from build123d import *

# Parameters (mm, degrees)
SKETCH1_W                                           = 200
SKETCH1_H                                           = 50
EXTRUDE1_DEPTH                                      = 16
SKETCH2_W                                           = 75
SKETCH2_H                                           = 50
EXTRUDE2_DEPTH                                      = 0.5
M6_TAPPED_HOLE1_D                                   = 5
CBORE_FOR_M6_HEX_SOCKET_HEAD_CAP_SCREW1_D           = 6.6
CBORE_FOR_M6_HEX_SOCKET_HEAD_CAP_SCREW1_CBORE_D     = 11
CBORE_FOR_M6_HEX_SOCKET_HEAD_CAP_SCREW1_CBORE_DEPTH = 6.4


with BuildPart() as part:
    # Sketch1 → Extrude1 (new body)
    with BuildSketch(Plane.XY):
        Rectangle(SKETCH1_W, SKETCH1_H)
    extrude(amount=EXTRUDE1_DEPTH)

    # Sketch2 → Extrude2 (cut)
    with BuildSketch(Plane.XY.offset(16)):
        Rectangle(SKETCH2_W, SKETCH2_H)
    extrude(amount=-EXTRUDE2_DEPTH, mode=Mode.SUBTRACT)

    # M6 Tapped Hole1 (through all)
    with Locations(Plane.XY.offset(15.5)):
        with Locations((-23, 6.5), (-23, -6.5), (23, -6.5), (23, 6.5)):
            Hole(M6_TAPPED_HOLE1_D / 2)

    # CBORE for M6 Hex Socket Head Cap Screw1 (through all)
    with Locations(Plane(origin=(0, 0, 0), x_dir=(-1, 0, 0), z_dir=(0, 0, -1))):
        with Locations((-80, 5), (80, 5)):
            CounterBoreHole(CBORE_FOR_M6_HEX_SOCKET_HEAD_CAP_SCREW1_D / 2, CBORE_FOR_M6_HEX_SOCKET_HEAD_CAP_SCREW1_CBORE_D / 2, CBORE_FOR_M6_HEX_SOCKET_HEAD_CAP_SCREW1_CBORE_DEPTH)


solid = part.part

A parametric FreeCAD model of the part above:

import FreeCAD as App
import Part
import Sketcher
from FreeCAD import Vector


def add_polygon(sketch, points):
    """Adds a closed chain of lines whose ends are joined by coincident constraints."""
    first, n = sketch.GeometryCount, len(points)
    for a, b in zip(points, points[1:] + points[:1]):
        sketch.addGeometry(Part.LineSegment(App.Vector(*a, 0), App.Vector(*b, 0)), False)
    for i in range(n):
        sketch.addConstraint(Sketcher.Constraint("Coincident", first + i, 2, first + (i + 1) % n, 1))

doc = App.newDocument("Part")
body = doc.addObject("PartDesign::Body", "Body")

# Sketch on XY plane
sketch1 = doc.addObject("Sketcher::SketchObject", "Sketch")
body.addObject(sketch1)
sketch1.AttachmentSupport = (doc.XY_Plane, [""])
sketch1.MapMode = "FlatFace"
add_polygon(sketch1, [(-100, 25), (-100, -25), (100, -25), (100, 25)])  # lines 0-3
sketch1.addConstraint(Sketcher.Constraint("Vertical", 0))
sketch1.addConstraint(Sketcher.Constraint("Horizontal", 1))
sketch1.addConstraint(Sketcher.Constraint("Vertical", 2))
sketch1.addConstraint(Sketcher.Constraint("Horizontal", 3))
sketch1.addConstraint(Sketcher.Constraint("Symmetric", 0, 2, 2, 2, -1, 1))
sketch1.addConstraint(Sketcher.Constraint("DistanceX", 1, 1, 1, 2, 200.0))
sketch1.addConstraint(Sketcher.Constraint("DistanceY", 0, 2, 0, 1, 50.0))
pad1 = doc.addObject("PartDesign::Pad", "Pad")
body.addObject(pad1)
pad1.Profile = sketch1
pad1.Length = 16

# Sketch on XY plane
sketch2 = doc.addObject("Sketcher::SketchObject", "Sketch001")
body.addObject(sketch2)
sketch2.AttachmentSupport = (doc.XY_Plane, [""])
sketch2.MapMode = "FlatFace"
sketch2.AttachmentOffset = App.Placement(Vector(0, 0, 16), App.Rotation())
add_polygon(sketch2, [(-37.5, 25), (-37.5, -25), (37.5, -25), (37.5, 25)])  # lines 0-3
sketch2.addConstraint(Sketcher.Constraint("Vertical", 0))
sketch2.addConstraint(Sketcher.Constraint("Horizontal", 1))
sketch2.addConstraint(Sketcher.Constraint("Vertical", 2))
sketch2.addConstraint(Sketcher.Constraint("Horizontal", 3))
sketch2.addConstraint(Sketcher.Constraint("Symmetric", 0, 2, 2, 2, -1, 1))
sketch2.addConstraint(Sketcher.Constraint("DistanceX", 1, 1, 1, 2, 75.0))
sketch2.addConstraint(Sketcher.Constraint("DistanceY", 0, 2, 0, 1, 50.0))
pocket1 = doc.addObject("PartDesign::Pocket", "Pocket")
body.addObject(pocket1)
pocket1.Profile = sketch2
pocket1.Length = 0.5

# Sketch on XY plane
sketch3 = doc.addObject("Sketcher::SketchObject", "Sketch002")
body.addObject(sketch3)
sketch3.AttachmentSupport = (doc.XY_Plane, [""])
sketch3.MapMode = "FlatFace"
sketch3.AttachmentOffset = App.Placement(Vector(0, 0, 15.5), App.Rotation())
sketch3.addGeometry(Part.Circle(Vector(-23, 6.5, 0), Vector(0, 0, 1), 2.5), False)
sketch3.addGeometry(Part.Circle(Vector(-23, -6.5, 0), Vector(0, 0, 1), 2.5), False)
sketch3.addGeometry(Part.Circle(Vector(23, -6.5, 0), Vector(0, 0, 1), 2.5), False)
sketch3.addGeometry(Part.Circle(Vector(23, 6.5, 0), Vector(0, 0, 1), 2.5), False)
sketch3.addConstraint(Sketcher.Constraint("Equal", 0, 1))
sketch3.addConstraint(Sketcher.Constraint("Equal", 1, 2))
sketch3.addConstraint(Sketcher.Constraint("Equal", 2, 3))
sketch3.addConstraint(Sketcher.Constraint("Symmetric", 0, 3, 2, 3, -1, 1))
sketch3.addConstraint(Sketcher.Constraint("Symmetric", 1, 3, 3, 3, -1, 1))
sketch3.addConstraint(Sketcher.Constraint("Symmetric", 1, 3, 2, 3, -2))
sketch3.addConstraint(Sketcher.Constraint("Diameter", 0, 5.0))
sketch3.addConstraint(Sketcher.Constraint("DistanceX", 0, 3, -1, 1, 23.0))
sketch3.addConstraint(Sketcher.Constraint("DistanceY", 1, 3, 0, 3, 13.0))
doc.recompute()
hole = doc.addObject("PartDesign::Hole", "Hole")
body.addObject(hole)
hole.Profile = sketch3
hole.ThreadType = "None"
hole.Diameter = 5
hole.DepthType = "ThroughAll"

# Sketch on XY plane
sketch4 = doc.addObject("Sketcher::SketchObject", "Sketch003")
body.addObject(sketch4)
sketch4.AttachmentSupport = (doc.XY_Plane, [""])
sketch4.MapMode = "FlatFace"
sketch4.addGeometry(Part.Circle(Vector(80, 5, 0), Vector(0, 0, 1), 3.3), False)
sketch4.addGeometry(Part.Circle(Vector(-80, 5, 0), Vector(0, 0, 1), 3.3), False)
sketch4.addConstraint(Sketcher.Constraint("Equal", 0, 1))
sketch4.addConstraint(Sketcher.Constraint("Symmetric", 0, 3, 1, 3, -2))
sketch4.addConstraint(Sketcher.Constraint("Diameter", 0, 6.6))
sketch4.addConstraint(Sketcher.Constraint("DistanceX", -1, 1, 0, 3, 80.0))
sketch4.addConstraint(Sketcher.Constraint("DistanceY", -1, 1, 0, 3, 5.0))
doc.recompute()
hole2 = doc.addObject("PartDesign::Hole", "Hole001")
body.addObject(hole2)
hole2.Profile = sketch4
hole2.ThreadType = "None"
hole2.Diameter = 6.6
hole2.DepthType = "ThroughAll"
hole2.HoleCutType = "Counterbore"
hole2.HoleCutDiameter = 11
hole2.HoleCutDepth = 6.4
hole2.Reversed = True

doc.recompute()
